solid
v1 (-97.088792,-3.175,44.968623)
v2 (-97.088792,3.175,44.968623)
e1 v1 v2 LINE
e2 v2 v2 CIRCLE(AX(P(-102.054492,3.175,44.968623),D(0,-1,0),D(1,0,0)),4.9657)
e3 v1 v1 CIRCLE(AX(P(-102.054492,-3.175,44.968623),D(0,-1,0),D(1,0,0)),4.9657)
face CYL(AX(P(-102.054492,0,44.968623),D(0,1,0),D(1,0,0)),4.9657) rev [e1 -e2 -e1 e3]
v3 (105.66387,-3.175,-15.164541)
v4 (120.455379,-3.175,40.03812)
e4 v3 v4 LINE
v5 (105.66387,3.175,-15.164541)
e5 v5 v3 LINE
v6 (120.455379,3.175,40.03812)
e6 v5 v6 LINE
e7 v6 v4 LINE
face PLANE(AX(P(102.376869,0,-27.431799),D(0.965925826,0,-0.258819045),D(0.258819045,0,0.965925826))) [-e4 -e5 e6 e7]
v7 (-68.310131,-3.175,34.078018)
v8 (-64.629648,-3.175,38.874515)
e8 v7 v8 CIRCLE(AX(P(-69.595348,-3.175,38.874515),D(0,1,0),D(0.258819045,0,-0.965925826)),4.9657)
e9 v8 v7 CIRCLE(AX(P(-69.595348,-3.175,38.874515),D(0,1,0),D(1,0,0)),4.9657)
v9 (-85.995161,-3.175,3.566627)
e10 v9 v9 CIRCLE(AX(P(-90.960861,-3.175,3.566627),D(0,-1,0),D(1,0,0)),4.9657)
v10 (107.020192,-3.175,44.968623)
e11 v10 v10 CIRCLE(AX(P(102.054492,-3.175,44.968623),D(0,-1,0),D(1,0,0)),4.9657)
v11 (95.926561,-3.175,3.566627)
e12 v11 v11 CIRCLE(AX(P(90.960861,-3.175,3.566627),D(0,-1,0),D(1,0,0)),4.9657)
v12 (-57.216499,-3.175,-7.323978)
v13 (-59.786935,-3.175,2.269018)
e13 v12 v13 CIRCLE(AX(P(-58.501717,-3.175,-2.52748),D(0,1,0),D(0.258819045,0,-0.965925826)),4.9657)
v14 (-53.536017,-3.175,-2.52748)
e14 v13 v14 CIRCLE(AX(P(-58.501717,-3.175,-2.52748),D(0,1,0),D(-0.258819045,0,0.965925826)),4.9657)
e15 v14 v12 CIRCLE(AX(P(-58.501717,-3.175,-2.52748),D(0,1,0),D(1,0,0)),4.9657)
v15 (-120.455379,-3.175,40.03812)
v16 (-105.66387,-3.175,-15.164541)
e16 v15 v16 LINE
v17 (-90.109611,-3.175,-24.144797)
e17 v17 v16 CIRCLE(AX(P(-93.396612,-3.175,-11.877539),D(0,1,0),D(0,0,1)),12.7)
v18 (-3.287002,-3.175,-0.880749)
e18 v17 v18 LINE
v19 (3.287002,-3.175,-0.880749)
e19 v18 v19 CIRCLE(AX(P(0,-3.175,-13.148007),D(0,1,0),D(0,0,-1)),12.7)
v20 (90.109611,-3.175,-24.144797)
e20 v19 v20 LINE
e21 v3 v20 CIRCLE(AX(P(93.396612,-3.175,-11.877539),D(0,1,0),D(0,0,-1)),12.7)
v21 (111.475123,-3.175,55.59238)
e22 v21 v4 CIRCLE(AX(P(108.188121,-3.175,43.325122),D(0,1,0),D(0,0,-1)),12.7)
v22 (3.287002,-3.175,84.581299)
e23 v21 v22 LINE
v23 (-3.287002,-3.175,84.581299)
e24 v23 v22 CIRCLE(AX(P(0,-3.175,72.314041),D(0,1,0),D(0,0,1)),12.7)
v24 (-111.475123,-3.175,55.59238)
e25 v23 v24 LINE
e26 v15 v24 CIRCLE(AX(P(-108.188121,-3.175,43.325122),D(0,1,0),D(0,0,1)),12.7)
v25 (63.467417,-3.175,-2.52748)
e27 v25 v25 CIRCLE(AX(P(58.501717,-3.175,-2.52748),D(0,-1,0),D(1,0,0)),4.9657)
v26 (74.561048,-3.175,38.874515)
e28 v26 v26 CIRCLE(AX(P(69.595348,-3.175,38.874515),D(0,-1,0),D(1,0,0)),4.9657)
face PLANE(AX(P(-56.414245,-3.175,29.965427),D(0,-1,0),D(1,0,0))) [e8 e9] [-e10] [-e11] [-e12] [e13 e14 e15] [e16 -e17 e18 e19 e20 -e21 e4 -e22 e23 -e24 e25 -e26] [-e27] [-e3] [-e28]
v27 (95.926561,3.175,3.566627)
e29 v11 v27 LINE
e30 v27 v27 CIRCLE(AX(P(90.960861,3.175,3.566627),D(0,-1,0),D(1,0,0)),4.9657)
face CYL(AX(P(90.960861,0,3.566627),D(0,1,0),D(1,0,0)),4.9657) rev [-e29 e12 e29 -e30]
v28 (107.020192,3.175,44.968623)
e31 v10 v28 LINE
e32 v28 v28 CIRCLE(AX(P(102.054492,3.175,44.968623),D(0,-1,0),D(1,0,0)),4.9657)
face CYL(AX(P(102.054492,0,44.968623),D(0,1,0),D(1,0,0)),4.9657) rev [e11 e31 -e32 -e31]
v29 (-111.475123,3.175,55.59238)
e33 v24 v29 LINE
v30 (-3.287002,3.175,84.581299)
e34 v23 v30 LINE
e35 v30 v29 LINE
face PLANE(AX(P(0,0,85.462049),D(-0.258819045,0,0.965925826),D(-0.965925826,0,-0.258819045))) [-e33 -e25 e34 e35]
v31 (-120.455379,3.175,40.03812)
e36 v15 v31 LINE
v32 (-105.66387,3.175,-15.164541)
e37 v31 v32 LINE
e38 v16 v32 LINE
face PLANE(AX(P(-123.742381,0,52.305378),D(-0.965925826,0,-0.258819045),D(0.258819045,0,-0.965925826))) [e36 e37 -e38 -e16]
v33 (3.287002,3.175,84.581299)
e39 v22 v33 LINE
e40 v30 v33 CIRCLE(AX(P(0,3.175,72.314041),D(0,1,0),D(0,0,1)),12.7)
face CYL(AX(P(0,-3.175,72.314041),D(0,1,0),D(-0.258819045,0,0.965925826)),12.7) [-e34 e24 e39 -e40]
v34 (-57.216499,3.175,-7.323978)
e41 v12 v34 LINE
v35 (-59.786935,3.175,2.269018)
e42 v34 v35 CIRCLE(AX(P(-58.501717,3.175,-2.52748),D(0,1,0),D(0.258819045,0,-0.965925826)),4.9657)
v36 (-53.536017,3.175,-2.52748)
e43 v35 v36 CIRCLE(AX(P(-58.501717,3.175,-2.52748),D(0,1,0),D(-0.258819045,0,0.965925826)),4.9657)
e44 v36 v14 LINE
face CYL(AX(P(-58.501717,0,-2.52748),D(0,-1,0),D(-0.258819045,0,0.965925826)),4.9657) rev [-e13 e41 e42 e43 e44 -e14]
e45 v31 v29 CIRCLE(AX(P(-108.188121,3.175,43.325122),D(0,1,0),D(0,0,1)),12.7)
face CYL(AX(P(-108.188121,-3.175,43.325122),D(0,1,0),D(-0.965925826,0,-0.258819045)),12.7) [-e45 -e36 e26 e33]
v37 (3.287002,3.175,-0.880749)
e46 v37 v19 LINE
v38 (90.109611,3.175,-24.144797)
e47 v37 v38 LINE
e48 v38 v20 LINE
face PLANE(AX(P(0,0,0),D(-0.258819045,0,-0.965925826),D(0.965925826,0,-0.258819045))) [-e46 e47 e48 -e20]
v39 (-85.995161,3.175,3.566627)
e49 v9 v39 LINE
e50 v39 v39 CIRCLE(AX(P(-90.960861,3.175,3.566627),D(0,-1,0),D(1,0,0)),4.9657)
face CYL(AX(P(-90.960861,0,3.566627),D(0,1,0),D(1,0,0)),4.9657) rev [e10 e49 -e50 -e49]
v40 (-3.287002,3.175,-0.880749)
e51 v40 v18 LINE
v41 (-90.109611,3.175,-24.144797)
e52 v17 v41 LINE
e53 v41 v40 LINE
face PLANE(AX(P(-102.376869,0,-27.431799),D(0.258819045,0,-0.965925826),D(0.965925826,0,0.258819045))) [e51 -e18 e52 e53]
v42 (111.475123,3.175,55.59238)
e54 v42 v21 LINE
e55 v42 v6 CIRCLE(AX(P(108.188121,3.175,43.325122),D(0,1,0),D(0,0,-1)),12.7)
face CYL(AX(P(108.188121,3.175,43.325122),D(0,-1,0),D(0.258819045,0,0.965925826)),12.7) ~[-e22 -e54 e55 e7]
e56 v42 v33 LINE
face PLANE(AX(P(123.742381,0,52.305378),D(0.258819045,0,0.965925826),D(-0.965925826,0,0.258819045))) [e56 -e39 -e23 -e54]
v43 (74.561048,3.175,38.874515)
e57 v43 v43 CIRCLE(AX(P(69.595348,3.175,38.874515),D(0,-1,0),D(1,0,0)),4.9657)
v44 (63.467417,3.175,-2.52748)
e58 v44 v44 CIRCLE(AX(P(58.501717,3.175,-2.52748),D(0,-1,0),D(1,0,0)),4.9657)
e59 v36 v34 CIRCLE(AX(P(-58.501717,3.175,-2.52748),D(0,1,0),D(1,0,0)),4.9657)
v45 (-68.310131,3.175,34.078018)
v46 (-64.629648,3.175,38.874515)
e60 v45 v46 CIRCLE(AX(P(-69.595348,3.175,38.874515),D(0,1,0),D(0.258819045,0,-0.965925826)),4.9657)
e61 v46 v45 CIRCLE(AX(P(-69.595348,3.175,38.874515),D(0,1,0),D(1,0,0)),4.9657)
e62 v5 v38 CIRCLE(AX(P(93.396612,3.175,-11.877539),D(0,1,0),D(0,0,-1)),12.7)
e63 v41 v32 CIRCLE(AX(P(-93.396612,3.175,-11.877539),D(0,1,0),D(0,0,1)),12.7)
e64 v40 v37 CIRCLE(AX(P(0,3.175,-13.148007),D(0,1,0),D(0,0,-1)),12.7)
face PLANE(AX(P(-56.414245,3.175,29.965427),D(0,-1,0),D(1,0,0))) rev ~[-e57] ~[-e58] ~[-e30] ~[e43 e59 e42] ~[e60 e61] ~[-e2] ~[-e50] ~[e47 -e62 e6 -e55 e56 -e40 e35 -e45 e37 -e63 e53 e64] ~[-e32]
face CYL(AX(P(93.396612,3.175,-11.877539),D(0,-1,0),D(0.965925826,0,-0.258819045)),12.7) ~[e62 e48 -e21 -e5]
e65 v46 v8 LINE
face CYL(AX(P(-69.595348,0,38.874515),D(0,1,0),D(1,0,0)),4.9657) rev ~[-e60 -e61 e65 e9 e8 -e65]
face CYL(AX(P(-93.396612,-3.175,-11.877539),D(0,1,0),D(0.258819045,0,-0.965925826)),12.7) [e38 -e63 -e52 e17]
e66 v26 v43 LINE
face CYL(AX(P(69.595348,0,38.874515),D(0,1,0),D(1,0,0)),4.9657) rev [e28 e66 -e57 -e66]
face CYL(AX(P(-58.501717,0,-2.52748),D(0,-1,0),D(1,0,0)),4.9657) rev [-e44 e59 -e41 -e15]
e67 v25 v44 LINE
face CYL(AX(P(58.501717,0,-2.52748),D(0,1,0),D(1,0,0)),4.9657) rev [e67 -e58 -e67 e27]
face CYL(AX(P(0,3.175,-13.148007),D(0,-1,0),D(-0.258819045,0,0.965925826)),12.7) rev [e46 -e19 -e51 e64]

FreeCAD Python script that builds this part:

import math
import FreeCAD as App
import Part
import Sketcher
from FreeCAD import Vector
Q = App.Units.Quantity


def edges_at(feature, points):
    """Names of the edges that pass closest to the given points."""
    edges = feature.Shape.Edges
    near = lambda p: min(range(len(edges)), key=lambda i: edges[i].distToShape(Part.Vertex(*p))[0])
    return sorted({f"Edge{near(p) + 1}" for p in points})

doc = App.newDocument("Part")
params = doc.addObject("Spreadsheet::Sheet", "Params")
for row, (alias, value) in enumerate([
    ("sketch1_diameter", "0.391 in"),
    ("sketch1_length", "3.25 in"),
    ("pad1_length", "0.25 in"),
    ("fillet_radius", "0.5 in"),
], start=1):
    params.set(f"A{row}", alias)
    params.set(f"B{row}", "=" + value)
    params.setAlias(f"B{row}", alias)

body = doc.addObject("PartDesign::Body", "Body")

# Sketch on XZ plane
sketch1 = doc.addObject("Sketcher::SketchObject", "Sketch")
body.addObject(sketch1)
sketch1.AttachmentSupport = (doc.XZ_Plane, [""])
sketch1.MapMode = "FlatFace"
sketch1.addGeometry(Part.LineSegment(Vector(-102.376869, -27.431799, 0), Vector(0, 0, 0)), False)
sketch1.addGeometry(Part.LineSegment(Vector(0, 0, 0), Vector(102.376869, -27.431799, 0)), False)
sketch1.addGeometry(Part.LineSegment(Vector(102.376869, -27.431799, 0), Vector(123.742381, 52.305378, 0)), False)
sketch1.addGeometry(Part.LineSegment(Vector(123.742381, 52.305378, 0), Vector(0, 85.462049, 0)), False)
sketch1.addGeometry(Part.LineSegment(Vector(0, 85.462049, 0), Vector(-123.742381, 52.305378, 0)), False)
sketch1.addGeometry(Part.LineSegment(Vector(-123.742381, 52.305378, 0), Vector(-102.376869, -27.431799, 0)), False)
sketch1.addGeometry(Part.ArcOfCircle(Part.Circle(Vector(-58.501717, -2.52748, 0), Vector(0, 0, 1), 4.9657), math.radians(0), math.radians(105)), False)
sketch1.addGeometry(Part.ArcOfCircle(Part.Circle(Vector(-58.501717, -2.52748, 0), Vector(0, 0, 1), 4.9657), math.radians(-75), math.radians(0)), False)
sketch1.addGeometry(Part.ArcOfCircle(Part.Circle(Vector(-58.501717, -2.52748, 0), Vector(0, 0, 1), 4.9657), math.radians(105), math.radians(285)), False)
sketch1.addGeometry(Part.Circle(Vector(-90.960861, 3.566627, 0), Vector(0, 0, 1), 4.9657), False)
sketch1.addGeometry(Part.Circle(Vector(58.501717, -2.52748, 0), Vector(0, 0, 1), 4.9657), False)
sketch1.addGeometry(Part.Circle(Vector(90.960861, 3.566627, 0), Vector(0, 0, 1), 4.9657), False)
sketch1.addGeometry(Part.ArcOfCircle(Part.Circle(Vector(-69.595348, 38.874515, 0), Vector(0, 0, 1), 4.9657), math.radians(0), math.radians(285)), False)
sketch1.addGeometry(Part.ArcOfCircle(Part.Circle(Vector(-69.595348, 38.874515, 0), Vector(0, 0, 1), 4.9657), math.radians(-75), math.radians(0)), False)
sketch1.addGeometry(Part.Circle(Vector(-102.054492, 44.968623, 0), Vector(0, 0, 1), 4.9657), False)
sketch1.addGeometry(Part.Circle(Vector(69.595348, 38.874515, 0), Vector(0, 0, 1), 4.9657), False)
sketch1.addGeometry(Part.Circle(Vector(102.054492, 44.968623, 0), Vector(0, 0, 1), 4.9657), False)
sketch1.addConstraint(Sketcher.Constraint("Coincident", 0, 2, 1, 1))
sketch1.addConstraint(Sketcher.Constraint("Coincident", 1, 2, 2, 1))
sketch1.addConstraint(Sketcher.Constraint("Coincident", 2, 2, 3, 1))
sketch1.addConstraint(Sketcher.Constraint("Coincident", 3, 2, 4, 1))
sketch1.addConstraint(Sketcher.Constraint("Coincident", 4, 2, 5, 1))
sketch1.addConstraint(Sketcher.Constraint("Coincident", 5, 2, 0, 1))
sketch1.addConstraint(Sketcher.Constraint("Tangent", 6, 1, 7, 2))
sketch1.addConstraint(Sketcher.Constraint("Tangent", 7, 1, 8, 2))
sketch1.addConstraint(Sketcher.Constraint("Tangent", 8, 1, 6, 2))
sketch1.addConstraint(Sketcher.Constraint("Tangent", 12, 1, 13, 2))
sketch1.addConstraint(Sketcher.Constraint("Coincident", 13, 1, 12, 2))
sketch1.addConstraint(Sketcher.Constraint("Coincident", 0, 2, -1, 1))
sketch1.addConstraint(Sketcher.Constraint("Equal", 8, 9))
sketch1.addConstraint(Sketcher.Constraint("Equal", 9, 10))
sketch1.addConstraint(Sketcher.Constraint("Equal", 10, 11))
sketch1.addConstraint(Sketcher.Constraint("Equal", 11, 12))
sketch1.addConstraint(Sketcher.Constraint("Equal", 13, 14))
sketch1.addConstraint(Sketcher.Constraint("Equal", 14, 15))
sketch1.addConstraint(Sketcher.Constraint("Equal", 15, 16))
sketch1.addConstraint(Sketcher.Constraint("Symmetric", 6, 3, 10, 3, -2))
sketch1.addConstraint(Sketcher.Constraint("Symmetric", 9, 3, 11, 3, -2))
sketch1.addConstraint(Sketcher.Constraint("Symmetric", 12, 3, 15, 3, -2))
sketch1.addConstraint(Sketcher.Constraint("Symmetric", 14, 3, 16, 3, -2))
sketch1.addConstraint(Sketcher.Constraint("Symmetric", 2, 2, 4, 2, -2))
sketch1.addConstraint(Sketcher.Constraint("Symmetric", 1, 2, 5, 2, -2))
sketch1.addConstraint(Sketcher.Constraint("PointOnObject", 3, 2, -2))
sketch1.addConstraint(Sketcher.Constraint("Perpendicular", 1, 2))
sketch1.addConstraint(Sketcher.Constraint("Perpendicular", 2, 3))
sketch1.addConstraint(Sketcher.Constraint("Horizontal", 10, 3, 6, 1))
sketch1.addConstraint(Sketcher.Constraint("Horizontal", 15, 3, 12, 1))
sketch1.addConstraint(Sketcher.Constraint("Diameter", 9, Q("0.391 in")))
sketch1.addConstraint(Sketcher.Constraint("Angle", 0, Q("15 deg")))
sketch1.addConstraint(Sketcher.Constraint("Distance", 2, Q("3.25 in")))
sketch1.addConstraint(Sketcher.Constraint("DistanceY", 6, 3, 12, 3, Q("1.6299998 in")))
sketch1.addConstraint(Sketcher.Constraint("DistanceY", 9, 3, 14, 3, Q("1.6299998 in")))
sketch1.addConstraint(Sketcher.Constraint("DistanceY", 1, 2, -1, 1, Q("27.431799 mm")))
sketch1.addConstraint(Sketcher.Constraint("DistanceX", 7, 1, -1, 1, Q("57.216499 mm")))
sketch1.addConstraint(Sketcher.Constraint("DistanceY", 8, 1, 13, 1, Q("31.809 mm")))
sketch1.addConstraint(Sketcher.Constraint("DistanceY", 6, 3, -1, 1, Q("2.52748 mm")))
sketch1.addConstraint(Sketcher.Constraint("DistanceX", 9, 3, -1, 1, Q("90.960861 mm")))
sketch1.addConstraint(Sketcher.Constraint("DistanceX", 12, 3, -1, 1, Q("69.595348 mm")))
sketch1.addConstraint(Sketcher.Constraint("DistanceX", 14, 3, -1, 1, Q("102.054492 mm")))
sketch1.addConstraint(Sketcher.Constraint("DistanceY", 7, 1, -1, 1, Q("7.323978 mm")))
sketch1.addConstraint(Sketcher.Constraint("DistanceX", 13, 1, -1, 1, Q("68.310131 mm")))
sketch1.addConstraint(Sketcher.Constraint("DistanceY", 9, 3, 12, 3, Q("35.307889 mm")))
sketch1.setExpression("Constraints[30]", "Params.sketch1_diameter")
sketch1.setExpression("Constraints[32]", "Params.sketch1_length")
pad1 = doc.addObject("PartDesign::Pad", "Pad")
body.addObject(pad1)
pad1.Profile = sketch1
pad1.setExpression("Length", "Params.pad1_length")
pad1.Midplane = True
doc.recompute()

fillet = doc.addObject("PartDesign::Fillet", "Fillet")
body.addObject(fillet)
fillet.Base = (pad1, edges_at(pad1, [
    (-123.742, 0, 52.305),
    (0, 0, 85.462),
    (0, 0, 0),
    (102.377, 0, -27.432),
    (123.742, 0, 52.305),
    (-102.377, 0, -27.432),
]))
fillet.setExpression("Radius", "Params.fillet_radius")

doc.recompute()
